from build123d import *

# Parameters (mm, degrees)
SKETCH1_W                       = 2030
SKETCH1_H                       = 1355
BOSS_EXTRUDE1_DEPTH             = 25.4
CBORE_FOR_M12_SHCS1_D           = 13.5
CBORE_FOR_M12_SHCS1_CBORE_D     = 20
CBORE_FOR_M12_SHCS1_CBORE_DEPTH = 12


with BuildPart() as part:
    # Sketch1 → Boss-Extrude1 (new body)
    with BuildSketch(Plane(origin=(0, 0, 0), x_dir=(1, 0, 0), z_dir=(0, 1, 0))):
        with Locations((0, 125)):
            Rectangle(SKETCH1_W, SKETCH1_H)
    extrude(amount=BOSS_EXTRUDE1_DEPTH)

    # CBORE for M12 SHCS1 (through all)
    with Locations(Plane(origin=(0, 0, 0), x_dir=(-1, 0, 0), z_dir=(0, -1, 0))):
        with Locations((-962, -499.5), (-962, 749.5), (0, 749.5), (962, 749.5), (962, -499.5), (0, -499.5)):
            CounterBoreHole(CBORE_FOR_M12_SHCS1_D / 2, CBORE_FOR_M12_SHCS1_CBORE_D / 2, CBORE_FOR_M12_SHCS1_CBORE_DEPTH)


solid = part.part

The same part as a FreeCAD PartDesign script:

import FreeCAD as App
import Part
import Sketcher
from FreeCAD import Vector
Q = App.Units.Quantity

doc = App.newDocument("Part")
params = doc.addObject("Spreadsheet::Sheet", "Params")
for row, (alias, value) in enumerate([
    ("sketch1_width", "2030 mm"),
    ("sketch1_height", "1355 mm"),
    ("pad1_length", "25.4 mm"),
    ("sketch2_diameter", "13.5 mm"),
    ("hole_diameter", "13.5 mm"),
    ("hole_cbore_diameter", "20 mm"),
    ("hole_cbore_depth", "12 mm"),
], start=1):
    params.set(f"A{row}", alias)
    params.set(f"B{row}", "=" + value)
    params.setAlias(f"B{row}", alias)

body = doc.addObject("PartDesign::Body", "Body")

sketch1 = body.newObject("Sketcher::SketchObject", "Sketch")
sketch1.AttachmentSupport = (doc.getObject("XZ_Plane"), [""])
sketch1.MapMode = "FlatFace"
sketch1.addGeometry([
    Part.LineSegment(Vector(-1015, -802.5, 0), Vector(-1015, 552.5, 0)),
    Part.LineSegment(Vector(-1015, 552.5, 0), Vector(1015, 552.5, 0)),
    Part.LineSegment(Vector(1015, 552.5, 0), Vector(1015, -802.5, 0)),
    Part.LineSegment(Vector(1015, -802.5, 0), Vector(-1015, -802.5, 0)),
], False)
sketch1.addConstraint([
    Sketcher.Constraint("Coincident", 0, 2, 1, 1),
    Sketcher.Constraint("Coincident", 1, 2, 2, 1),
    Sketcher.Constraint("Coincident", 2, 2, 3, 1),
    Sketcher.Constraint("Coincident", 3, 2, 0, 1),
    Sketcher.Constraint("Vertical", 0),
    Sketcher.Constraint("Horizontal", 1),
    Sketcher.Constraint("Vertical", 2),
    Sketcher.Constraint("Horizontal", 3),
    Sketcher.Constraint("DistanceX", 1, 1, 1, 2, Q("2030 mm")),
    Sketcher.Constraint("DistanceY", 0, 1, 0, 2, Q("1355 mm")),
    Sketcher.Constraint("DistanceX", 0, 2, -1, 1, Q("1015 mm")),
    Sketcher.Constraint("DistanceY", -1, 1, 0, 2, Q("552.5 mm")),
])
sketch1.setExpression("Constraints[8]", "Params.sketch1_width")
sketch1.setExpression("Constraints[9]", "Params.sketch1_height")
pad1 = body.newObject("PartDesign::Pad", "Pad")
pad1.Profile = sketch1
pad1.setExpression("Length", "Params.pad1_length")
pad1.Reversed = True

sketch2 = body.newObject("Sketcher::SketchObject", "Sketch001")
sketch2.AttachmentSupport = (doc.getObject("XZ_Plane"), [""])
sketch2.MapMode = "FlatFace"
sketch2.addGeometry([
    Part.Circle(Vector(962, 499.5, 0), Vector(0, 0, 1), 6.75),
    Part.Circle(Vector(962, -749.5, 0), Vector(0, 0, 1), 6.75),
    Part.Circle(Vector(0, -749.5, 0), Vector(0, 0, 1), 6.75),
    Part.Circle(Vector(-962, -749.5, 0), Vector(0, 0, 1), 6.75),
    Part.Circle(Vector(-962, 499.5, 0), Vector(0, 0, 1), 6.75),
    Part.Circle(Vector(0, 499.5, 0), Vector(0, 0, 1), 6.75),
], False)
sketch2.addConstraint([
    Sketcher.Constraint("Equal", 0, 1),
    Sketcher.Constraint("Equal", 1, 2),
    Sketcher.Constraint("Equal", 2, 3),
    Sketcher.Constraint("Equal", 3, 4),
    Sketcher.Constraint("Equal", 4, 5),
    Sketcher.Constraint("Symmetric", 1, 3, 3, 3, -2),
    Sketcher.Constraint("Symmetric", 0, 3, 4, 3, -2),
    Sketcher.Constraint("PointOnObject", 2, 3, -2),
    Sketcher.Constraint("PointOnObject", 5, 3, -2),
    Sketcher.Constraint("Horizontal", 1, 3, 2, 3),
    Sketcher.Constraint("Horizontal", 4, 3, 5, 3),
    Sketcher.Constraint("Vertical", 0, 3, 1, 3),
    Sketcher.Constraint("Diameter", 0, Q("13.5 mm")),
    Sketcher.Constraint("DistanceX", -1, 1, 0, 3, Q("962 mm")),
    Sketcher.Constraint("DistanceY", 1, 3, 0, 3, Q("1249 mm")),
    Sketcher.Constraint("DistanceY", -1, 1, 0, 3, Q("499.5 mm")),
])
sketch2.setExpression("Constraints[12]", "Params.sketch2_diameter")
doc.recompute()
hole = body.newObject("PartDesign::Hole", "Hole")
hole.Profile = sketch2
hole.ThreadType = "None"
hole.setExpression("Diameter", "Params.hole_diameter")
hole.DepthType = "ThroughAll"
hole.HoleCutType = "Counterbore"
hole.setExpression("HoleCutDiameter", "Params.hole_cbore_diameter")
hole.setExpression("HoleCutDepth", "Params.hole_cbore_depth")

doc.recompute()
